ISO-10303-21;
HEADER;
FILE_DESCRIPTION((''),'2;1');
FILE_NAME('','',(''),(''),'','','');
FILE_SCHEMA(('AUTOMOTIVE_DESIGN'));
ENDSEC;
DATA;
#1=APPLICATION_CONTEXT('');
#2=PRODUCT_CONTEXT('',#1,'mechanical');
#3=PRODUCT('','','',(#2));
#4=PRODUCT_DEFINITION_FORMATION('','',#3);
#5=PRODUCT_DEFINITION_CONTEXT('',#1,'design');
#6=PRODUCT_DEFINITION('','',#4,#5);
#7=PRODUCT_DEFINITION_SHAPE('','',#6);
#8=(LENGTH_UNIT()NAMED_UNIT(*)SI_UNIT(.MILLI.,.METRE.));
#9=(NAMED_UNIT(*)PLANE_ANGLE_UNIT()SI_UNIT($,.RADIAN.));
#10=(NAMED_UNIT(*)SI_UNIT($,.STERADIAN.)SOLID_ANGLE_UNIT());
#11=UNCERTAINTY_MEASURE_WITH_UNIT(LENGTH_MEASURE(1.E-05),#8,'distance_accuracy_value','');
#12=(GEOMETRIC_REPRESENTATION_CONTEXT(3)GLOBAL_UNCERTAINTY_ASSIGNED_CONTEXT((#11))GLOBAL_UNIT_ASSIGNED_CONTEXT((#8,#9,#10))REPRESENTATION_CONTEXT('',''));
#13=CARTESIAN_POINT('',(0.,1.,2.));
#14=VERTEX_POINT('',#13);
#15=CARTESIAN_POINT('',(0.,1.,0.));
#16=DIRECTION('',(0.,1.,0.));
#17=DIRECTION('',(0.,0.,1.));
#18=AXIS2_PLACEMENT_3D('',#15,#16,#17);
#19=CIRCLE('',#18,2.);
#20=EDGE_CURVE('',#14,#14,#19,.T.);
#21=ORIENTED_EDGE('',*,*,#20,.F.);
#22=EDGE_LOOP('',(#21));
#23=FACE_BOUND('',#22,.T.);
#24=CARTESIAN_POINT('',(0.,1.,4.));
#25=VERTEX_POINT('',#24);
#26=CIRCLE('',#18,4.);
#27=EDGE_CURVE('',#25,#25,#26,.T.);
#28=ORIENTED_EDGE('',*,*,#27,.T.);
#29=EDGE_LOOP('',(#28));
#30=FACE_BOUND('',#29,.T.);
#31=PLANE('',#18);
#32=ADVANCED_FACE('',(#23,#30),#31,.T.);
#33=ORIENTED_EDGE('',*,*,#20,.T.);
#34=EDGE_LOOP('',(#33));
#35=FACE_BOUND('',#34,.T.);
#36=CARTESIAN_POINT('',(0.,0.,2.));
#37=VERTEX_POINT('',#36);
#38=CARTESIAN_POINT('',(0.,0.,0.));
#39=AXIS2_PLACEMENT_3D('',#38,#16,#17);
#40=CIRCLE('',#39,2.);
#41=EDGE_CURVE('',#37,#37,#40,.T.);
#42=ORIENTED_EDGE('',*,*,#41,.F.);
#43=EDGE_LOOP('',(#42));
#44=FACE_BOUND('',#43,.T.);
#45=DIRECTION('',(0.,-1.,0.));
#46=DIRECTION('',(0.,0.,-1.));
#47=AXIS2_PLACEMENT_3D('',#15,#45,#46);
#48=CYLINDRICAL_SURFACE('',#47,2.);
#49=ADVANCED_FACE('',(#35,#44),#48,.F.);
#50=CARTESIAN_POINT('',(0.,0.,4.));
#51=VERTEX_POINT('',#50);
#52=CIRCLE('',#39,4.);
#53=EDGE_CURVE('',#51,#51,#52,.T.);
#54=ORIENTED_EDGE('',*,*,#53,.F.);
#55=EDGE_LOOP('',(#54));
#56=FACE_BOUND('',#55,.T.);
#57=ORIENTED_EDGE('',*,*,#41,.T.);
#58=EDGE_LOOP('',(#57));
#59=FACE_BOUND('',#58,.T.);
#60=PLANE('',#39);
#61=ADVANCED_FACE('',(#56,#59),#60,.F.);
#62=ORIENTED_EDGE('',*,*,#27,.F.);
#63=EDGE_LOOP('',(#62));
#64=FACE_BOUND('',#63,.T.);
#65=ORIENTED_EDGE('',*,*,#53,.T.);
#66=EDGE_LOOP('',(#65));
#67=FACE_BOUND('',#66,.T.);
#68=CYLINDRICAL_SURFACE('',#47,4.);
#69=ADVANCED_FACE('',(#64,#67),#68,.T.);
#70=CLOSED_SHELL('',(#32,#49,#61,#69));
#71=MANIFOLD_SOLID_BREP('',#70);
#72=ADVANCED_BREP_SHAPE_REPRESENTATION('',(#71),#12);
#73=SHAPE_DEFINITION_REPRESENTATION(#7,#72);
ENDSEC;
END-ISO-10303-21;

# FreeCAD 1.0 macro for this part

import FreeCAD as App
import Part
import Sketcher

doc = App.newDocument("Part")
body = doc.addObject("PartDesign::Body", "Body")

sketch1 = body.newObject("Sketcher::SketchObject", "Sketch")
sketch1.AttachmentSupport = (doc.getObject("XZ_Plane"), [""])
sketch1.MapMode = "FlatFace"
sketch1.addGeometry([
    Part.Circle(App.Vector(0, 0, 0), App.Vector(0, 0, 1), 4),
    Part.Circle(App.Vector(0, 0, 0), App.Vector(0, 0, 1), 2),
], False)
sketch1.addConstraint([
    Sketcher.Constraint("Coincident", 0, 3, -1, 1),
    Sketcher.Constraint("Coincident", 1, 3, -1, 1),
    Sketcher.Constraint("Diameter", 0, 8.0),
    Sketcher.Constraint("Diameter", 1, 4.0),
])
pad1 = body.newObject("PartDesign::Pad", "Pad")
pad1.Profile = sketch1
pad1.Length = 1
pad1.Reversed = True

doc.recompute()
